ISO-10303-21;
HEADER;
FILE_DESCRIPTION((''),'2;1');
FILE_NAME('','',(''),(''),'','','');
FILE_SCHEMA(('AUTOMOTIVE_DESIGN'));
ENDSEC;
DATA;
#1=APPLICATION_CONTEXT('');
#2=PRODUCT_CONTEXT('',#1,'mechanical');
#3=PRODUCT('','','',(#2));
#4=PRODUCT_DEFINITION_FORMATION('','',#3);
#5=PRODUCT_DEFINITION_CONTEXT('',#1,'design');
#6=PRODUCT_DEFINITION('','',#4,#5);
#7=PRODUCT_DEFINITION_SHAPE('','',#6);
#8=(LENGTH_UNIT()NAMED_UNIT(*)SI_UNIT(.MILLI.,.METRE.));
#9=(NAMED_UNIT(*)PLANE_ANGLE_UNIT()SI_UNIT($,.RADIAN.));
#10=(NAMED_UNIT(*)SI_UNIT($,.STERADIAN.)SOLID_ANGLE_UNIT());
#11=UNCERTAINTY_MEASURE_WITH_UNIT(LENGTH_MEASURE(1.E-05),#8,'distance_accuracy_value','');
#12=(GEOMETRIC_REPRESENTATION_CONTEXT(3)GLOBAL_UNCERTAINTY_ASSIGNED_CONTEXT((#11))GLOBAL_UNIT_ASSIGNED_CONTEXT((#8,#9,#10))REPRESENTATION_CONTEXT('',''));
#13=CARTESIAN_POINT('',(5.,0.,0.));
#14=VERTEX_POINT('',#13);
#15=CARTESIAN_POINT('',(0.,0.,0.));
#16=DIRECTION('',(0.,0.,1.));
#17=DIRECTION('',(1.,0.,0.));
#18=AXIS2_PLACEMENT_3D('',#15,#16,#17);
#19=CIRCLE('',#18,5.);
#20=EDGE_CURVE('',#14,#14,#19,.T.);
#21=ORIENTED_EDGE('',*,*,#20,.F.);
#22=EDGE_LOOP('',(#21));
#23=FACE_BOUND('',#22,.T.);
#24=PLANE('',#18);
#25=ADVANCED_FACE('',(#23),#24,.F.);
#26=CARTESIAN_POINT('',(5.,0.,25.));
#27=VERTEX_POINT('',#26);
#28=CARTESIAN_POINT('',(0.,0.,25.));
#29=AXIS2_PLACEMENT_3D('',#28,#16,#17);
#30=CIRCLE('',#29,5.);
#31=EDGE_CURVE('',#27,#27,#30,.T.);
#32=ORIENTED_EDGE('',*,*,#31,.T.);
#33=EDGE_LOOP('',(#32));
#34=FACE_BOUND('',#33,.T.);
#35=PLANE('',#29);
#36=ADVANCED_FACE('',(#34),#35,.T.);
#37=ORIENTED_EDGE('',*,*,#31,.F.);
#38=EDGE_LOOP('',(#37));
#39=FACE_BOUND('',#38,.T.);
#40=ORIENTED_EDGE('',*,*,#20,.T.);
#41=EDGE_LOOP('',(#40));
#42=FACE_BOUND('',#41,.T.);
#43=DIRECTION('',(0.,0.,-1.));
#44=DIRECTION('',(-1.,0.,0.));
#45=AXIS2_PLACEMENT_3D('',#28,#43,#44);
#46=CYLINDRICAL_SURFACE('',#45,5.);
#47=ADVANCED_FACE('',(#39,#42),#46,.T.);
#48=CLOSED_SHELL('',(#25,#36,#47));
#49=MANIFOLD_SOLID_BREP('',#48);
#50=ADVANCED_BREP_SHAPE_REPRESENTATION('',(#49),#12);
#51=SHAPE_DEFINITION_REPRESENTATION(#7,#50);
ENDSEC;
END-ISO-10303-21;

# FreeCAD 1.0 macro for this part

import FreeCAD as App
import Part
import Sketcher
Q = App.Units.Quantity

doc = App.newDocument("Part")
body = doc.addObject("PartDesign::Body", "Body")

sketch1 = body.newObject("Sketcher::SketchObject", "Sketch")
sketch1.AttachmentSupport = (doc.getObject("XY_Plane"), [""])
sketch1.MapMode = "FlatFace"
sketch1.addGeometry(Part.Circle(App.Vector(0, 0, 0), App.Vector(0, 0, 1), 5), False)
sketch1.addConstraint([
    Sketcher.Constraint("Coincident", 0, 3, -1, 1),
    Sketcher.Constraint("Diameter", 0, Q("10 mm")),
])
pad1 = body.newObject("PartDesign::Pad", "Pad")
pad1.Profile = sketch1
pad1.Length = 25

doc.recompute()
